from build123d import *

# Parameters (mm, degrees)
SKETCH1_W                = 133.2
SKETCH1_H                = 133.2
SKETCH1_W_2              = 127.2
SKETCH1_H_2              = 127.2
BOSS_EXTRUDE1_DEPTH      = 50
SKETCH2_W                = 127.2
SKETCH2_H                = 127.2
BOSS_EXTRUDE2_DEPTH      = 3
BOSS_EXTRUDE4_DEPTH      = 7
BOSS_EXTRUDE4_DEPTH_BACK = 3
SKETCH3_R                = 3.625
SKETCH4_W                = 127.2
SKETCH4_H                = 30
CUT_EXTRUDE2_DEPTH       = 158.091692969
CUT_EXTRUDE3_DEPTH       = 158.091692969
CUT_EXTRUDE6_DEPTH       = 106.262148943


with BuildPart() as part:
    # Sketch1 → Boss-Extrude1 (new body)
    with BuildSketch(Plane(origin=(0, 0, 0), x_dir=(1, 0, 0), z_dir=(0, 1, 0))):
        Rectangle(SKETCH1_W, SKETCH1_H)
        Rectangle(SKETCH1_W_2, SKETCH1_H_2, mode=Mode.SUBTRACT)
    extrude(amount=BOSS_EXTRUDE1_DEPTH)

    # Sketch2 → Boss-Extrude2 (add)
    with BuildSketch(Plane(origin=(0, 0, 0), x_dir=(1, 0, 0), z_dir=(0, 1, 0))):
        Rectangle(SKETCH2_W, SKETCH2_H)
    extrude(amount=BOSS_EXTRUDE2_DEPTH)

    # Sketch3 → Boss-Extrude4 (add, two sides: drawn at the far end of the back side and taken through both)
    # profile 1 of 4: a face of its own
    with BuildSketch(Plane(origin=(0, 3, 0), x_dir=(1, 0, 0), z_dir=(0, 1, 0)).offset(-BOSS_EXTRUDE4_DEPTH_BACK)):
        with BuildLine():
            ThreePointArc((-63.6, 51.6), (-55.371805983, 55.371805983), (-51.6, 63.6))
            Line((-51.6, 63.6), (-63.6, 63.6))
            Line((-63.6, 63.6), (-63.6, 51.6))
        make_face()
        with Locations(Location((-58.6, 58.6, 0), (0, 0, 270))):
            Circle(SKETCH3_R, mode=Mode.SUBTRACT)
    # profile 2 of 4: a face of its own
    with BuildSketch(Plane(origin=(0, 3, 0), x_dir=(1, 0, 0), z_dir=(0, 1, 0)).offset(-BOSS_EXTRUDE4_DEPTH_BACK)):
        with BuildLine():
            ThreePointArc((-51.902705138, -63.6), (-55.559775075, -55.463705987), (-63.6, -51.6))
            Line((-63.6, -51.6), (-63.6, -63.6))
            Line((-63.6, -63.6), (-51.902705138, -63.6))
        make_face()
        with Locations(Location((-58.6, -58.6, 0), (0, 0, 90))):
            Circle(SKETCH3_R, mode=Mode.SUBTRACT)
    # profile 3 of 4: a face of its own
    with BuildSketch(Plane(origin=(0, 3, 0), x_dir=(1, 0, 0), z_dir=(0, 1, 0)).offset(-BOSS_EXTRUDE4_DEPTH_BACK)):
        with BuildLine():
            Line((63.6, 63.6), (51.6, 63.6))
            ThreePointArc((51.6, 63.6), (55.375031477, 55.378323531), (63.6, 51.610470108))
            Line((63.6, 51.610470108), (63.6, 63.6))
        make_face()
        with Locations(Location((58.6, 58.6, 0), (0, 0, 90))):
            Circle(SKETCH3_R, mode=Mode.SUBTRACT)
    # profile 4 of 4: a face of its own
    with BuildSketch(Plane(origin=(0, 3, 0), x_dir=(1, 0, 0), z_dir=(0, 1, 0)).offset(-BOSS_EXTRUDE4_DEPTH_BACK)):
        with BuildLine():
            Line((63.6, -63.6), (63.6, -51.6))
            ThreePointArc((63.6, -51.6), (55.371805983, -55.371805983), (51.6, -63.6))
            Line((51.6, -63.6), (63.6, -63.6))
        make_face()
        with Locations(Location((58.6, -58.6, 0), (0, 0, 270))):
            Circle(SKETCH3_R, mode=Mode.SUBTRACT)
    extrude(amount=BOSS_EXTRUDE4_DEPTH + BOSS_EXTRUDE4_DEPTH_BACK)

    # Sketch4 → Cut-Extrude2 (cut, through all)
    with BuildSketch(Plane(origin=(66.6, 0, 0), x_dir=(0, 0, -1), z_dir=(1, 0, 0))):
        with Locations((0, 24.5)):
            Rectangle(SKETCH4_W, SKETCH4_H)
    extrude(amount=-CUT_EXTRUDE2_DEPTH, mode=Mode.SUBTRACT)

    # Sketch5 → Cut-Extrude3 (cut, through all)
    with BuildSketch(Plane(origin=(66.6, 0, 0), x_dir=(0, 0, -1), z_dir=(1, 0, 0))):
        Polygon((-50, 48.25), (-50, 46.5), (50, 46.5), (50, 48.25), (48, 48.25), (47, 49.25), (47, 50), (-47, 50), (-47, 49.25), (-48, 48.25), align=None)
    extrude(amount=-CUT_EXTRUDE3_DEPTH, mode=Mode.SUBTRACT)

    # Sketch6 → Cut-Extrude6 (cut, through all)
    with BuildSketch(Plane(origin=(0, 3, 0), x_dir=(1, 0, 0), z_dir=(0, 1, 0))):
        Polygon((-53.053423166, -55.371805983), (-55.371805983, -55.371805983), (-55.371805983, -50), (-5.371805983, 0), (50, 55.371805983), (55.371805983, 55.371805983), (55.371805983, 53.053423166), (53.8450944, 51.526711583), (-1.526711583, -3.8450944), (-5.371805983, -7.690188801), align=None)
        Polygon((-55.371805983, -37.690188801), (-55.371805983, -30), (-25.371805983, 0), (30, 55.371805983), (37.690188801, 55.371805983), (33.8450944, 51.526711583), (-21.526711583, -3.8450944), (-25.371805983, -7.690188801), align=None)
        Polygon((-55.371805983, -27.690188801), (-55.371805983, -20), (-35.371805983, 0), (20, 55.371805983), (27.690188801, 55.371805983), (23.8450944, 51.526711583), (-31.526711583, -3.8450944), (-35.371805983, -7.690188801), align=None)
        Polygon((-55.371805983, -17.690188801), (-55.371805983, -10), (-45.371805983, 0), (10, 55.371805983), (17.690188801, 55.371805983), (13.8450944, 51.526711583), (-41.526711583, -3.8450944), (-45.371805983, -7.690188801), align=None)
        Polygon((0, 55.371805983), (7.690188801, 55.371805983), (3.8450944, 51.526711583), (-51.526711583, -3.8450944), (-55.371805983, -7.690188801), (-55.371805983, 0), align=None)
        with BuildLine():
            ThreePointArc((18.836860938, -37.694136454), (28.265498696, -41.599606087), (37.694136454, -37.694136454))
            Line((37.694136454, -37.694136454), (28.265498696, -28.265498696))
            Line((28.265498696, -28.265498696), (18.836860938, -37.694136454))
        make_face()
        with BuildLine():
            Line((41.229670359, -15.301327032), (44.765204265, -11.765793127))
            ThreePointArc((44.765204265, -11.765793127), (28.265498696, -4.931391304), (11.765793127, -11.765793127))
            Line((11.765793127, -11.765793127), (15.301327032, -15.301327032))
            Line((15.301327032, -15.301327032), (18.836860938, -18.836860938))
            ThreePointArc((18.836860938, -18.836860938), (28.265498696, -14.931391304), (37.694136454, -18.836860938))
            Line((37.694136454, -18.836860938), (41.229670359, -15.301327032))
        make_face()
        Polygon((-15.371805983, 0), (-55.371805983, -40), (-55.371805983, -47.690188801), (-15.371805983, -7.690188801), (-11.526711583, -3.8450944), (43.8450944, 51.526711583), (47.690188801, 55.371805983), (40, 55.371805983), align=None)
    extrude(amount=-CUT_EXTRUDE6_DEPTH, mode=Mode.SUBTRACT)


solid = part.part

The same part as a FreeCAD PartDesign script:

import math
import FreeCAD as App
import Part
import Sketcher

V = App.Vector
Q = App.Units.Quantity


def add_polygon(sketch, points):
    """Adds a closed chain of lines whose ends are joined by coincident constraints."""
    first, n = sketch.GeometryCount, len(points)
    for a, b in zip(points, points[1:] + points[:1]):
        sketch.addGeometry(Part.LineSegment(App.Vector(*a, 0), App.Vector(*b, 0)), False)
    for i in range(n):
        sketch.addConstraint(Sketcher.Constraint("Coincident", first + i, 2, first + (i + 1) % n, 1))

doc = App.newDocument("Part")
body = doc.addObject("PartDesign::Body", "Body")

sketch1 = body.newObject("Sketcher::SketchObject", "Sketch")
sketch1.AttachmentSupport = (doc.getObject("XZ_Plane"), [""])
sketch1.MapMode = "FlatFace"
add_polygon(sketch1, [(-67, -67), (-67, 67), (67, 67), (67, -67)])
add_polygon(sketch1, [(64, 64), (-64, 64), (-64, -64), (64, -64)])
sketch1.addConstraint([
    Sketcher.Constraint("Vertical", 0),
    Sketcher.Constraint("Horizontal", 1),
    Sketcher.Constraint("Vertical", 2),
    Sketcher.Constraint("Horizontal", 3),
    Sketcher.Constraint("Horizontal", 4),
    Sketcher.Constraint("Vertical", 5),
    Sketcher.Constraint("Horizontal", 6),
    Sketcher.Constraint("Vertical", 7),
    Sketcher.Constraint("Symmetric", 0, 2, 2, 2, -1, 1),
    Sketcher.Constraint("Symmetric", 4, 2, 6, 2, -1, 1),
    Sketcher.Constraint("Equal", 3, 0),
    Sketcher.Constraint("Equal", 6, 5),
    Sketcher.Constraint("DistanceX", 1, 1, 1, 2, Q("133.2 mm")),
    Sketcher.Constraint("DistanceX", 4, 2, 4, 1, Q("127.2 mm")),
])
pad1 = body.newObject("PartDesign::Pad", "Pad")
pad1.Profile = sketch1
pad1.Length = 50
pad1.Reversed = True

sketch2 = body.newObject("Sketcher::SketchObject", "Sketch001")
sketch2.AttachmentSupport = (doc.getObject("XZ_Plane"), [""])
sketch2.MapMode = "FlatFace"
add_polygon(sketch2, [(-64, -64), (-64, 64), (64, 64), (64, -64)])
sketch2.addConstraint([
    Sketcher.Constraint("Vertical", 0),
    Sketcher.Constraint("Horizontal", 1),
    Sketcher.Constraint("Vertical", 2),
    Sketcher.Constraint("Horizontal", 3),
    Sketcher.Constraint("Symmetric", 0, 2, 2, 2, -1, 1),
    Sketcher.Constraint("Equal", 3, 0),
    Sketcher.Constraint("DistanceX", 1, 1, 1, 2, Q("127.2 mm")),
])
pad2 = body.newObject("PartDesign::Pad", "Pad001")
pad2.Profile = sketch2
pad2.Length = 3
pad2.Reversed = True

sketch3 = body.newObject("Sketcher::SketchObject", "Sketch002")
sketch3.AttachmentSupport = (doc.getObject("XZ_Plane"), [""])
sketch3.MapMode = "FlatFace"
sketch3.AttachmentOffset = App.Placement(V(0, 0, -3), App.Rotation())
sketch3.addGeometry([
    Part.ArcOfCircle(Part.Circle(V(-64.6, -64.6, 0), V(0, 0, 1), 13), math.radians(4), math.radians(86)),
    Part.LineSegment(V(-51.6, -63.6, 0), V(-63.6, -63.6, 0)),
    Part.LineSegment(V(-63.6, -63.6, 0), V(-63.6, -51.6, 0)),
    Part.Circle(V(-58.6, -58.6, 0), V(0, 0, 1), 3.6),
    Part.ArcOfCircle(Part.Circle(V(-64.9, 64.5, 0), V(0, 0, 1), 13), math.radians(-84), math.radians(-4)),
    Part.LineSegment(V(-63.6, 51.6, 0), V(-63.6, 63.6, 0)),
    Part.LineSegment(V(-63.6, 63.6, 0), V(-51.9, 63.6, 0)),
    Part.Circle(V(-58.6, 58.6, 0), V(0, 0, 1), 3.6),
    Part.LineSegment(V(63.6, -63.6, 0), V(51.6, -63.6, 0)),
    Part.ArcOfCircle(Part.Circle(V(64.6, -64.6, 0), V(0, 0, 1), 13), math.radians(94), math.radians(176)),
    Part.LineSegment(V(63.6, -51.6, 0), V(63.6, -63.6, 0)),
    Part.Circle(V(58.6, -58.6, 0), V(0, 0, 1), 3.6),
    Part.LineSegment(V(63.6, 63.6, 0), V(63.6, 51.6, 0)),
    Part.ArcOfCircle(Part.Circle(V(64.6, 64.6, 0), V(0, 0, 1), 13), math.radians(-176), math.radians(-94)),
    Part.LineSegment(V(51.6, 63.6, 0), V(63.6, 63.6, 0)),
    Part.Circle(V(58.6, 58.6, 0), V(0, 0, 1), 3.6),
], False)
sketch3.addConstraint([
    Sketcher.Constraint("Coincident", 0, 1, 1, 1),
    Sketcher.Constraint("Coincident", 1, 2, 2, 1),
    Sketcher.Constraint("Coincident", 2, 2, 0, 2),
    Sketcher.Constraint("Coincident", 4, 1, 5, 1),
    Sketcher.Constraint("Coincident", 5, 2, 6, 1),
    Sketcher.Constraint("Coincident", 6, 2, 4, 2),
    Sketcher.Constraint("Coincident", 8, 2, 9, 2),
    Sketcher.Constraint("Coincident", 9, 1, 10, 1),
    Sketcher.Constraint("Coincident", 10, 2, 8, 1),
    Sketcher.Constraint("Coincident", 12, 2, 13, 2),
    Sketcher.Constraint("Coincident", 13, 1, 14, 1),
    Sketcher.Constraint("Coincident", 14, 2, 12, 1),
    Sketcher.Constraint("Horizontal", 1),
    Sketcher.Constraint("Vertical", 2),
    Sketcher.Constraint("Vertical", 5),
    Sketcher.Constraint("Horizontal", 6),
    Sketcher.Constraint("Horizontal", 8),
    Sketcher.Constraint("Vertical", 10),
    Sketcher.Constraint("Vertical", 12),
    Sketcher.Constraint("Horizontal", 14),
    Sketcher.Constraint("Equal", 0, 4),
    Sketcher.Constraint("Equal", 3, 7),
    Sketcher.Constraint("Equal", 4, 9),
    Sketcher.Constraint("Equal", 7, 11),
    Sketcher.Constraint("Equal", 9, 13),
    Sketcher.Constraint("Equal", 11, 15),
    Sketcher.Constraint("Symmetric", 7, 3, 11, 3, -1, 1),
    Sketcher.Constraint("Symmetric", 0, 3, 13, 3, -1, 1),
    Sketcher.Constraint("Symmetric", 3, 3, 15, 3, -1, 1),
    Sketcher.Constraint("Symmetric", 5, 2, 10, 2, -1, 1),
    Sketcher.Constraint("Symmetric", 1, 2, 14, 2, -1, 1),
    Sketcher.Constraint("Symmetric", 3, 3, 11, 3, -2),
    Sketcher.Constraint("Symmetric", 0, 1, 8, 2, -2),
    Sketcher.Constraint("Symmetric", 4, 1, 12, 2, -2),
    Sketcher.Constraint("Equal", 14, 2),
    Sketcher.Constraint("Radius", 0, Q("13 mm")),
    Sketcher.Constraint("Diameter", 3, Q("7.25 mm")),
    Sketcher.Constraint("DistanceX", 1, 2, 1, 1, Q("12 mm")),
    Sketcher.Constraint("DistanceX", 3, 3, 0, 1, Q("7 mm")),
    Sketcher.Constraint("DistanceY", 0, 1, 3, 3, Q("5 mm")),
    Sketcher.Constraint("DistanceX", 3, 3, -1, 1, Q("58.6 mm")),
    Sketcher.Constraint("DistanceY", 3, 3, -1, 1, Q("58.6 mm")),
    Sketcher.Constraint("DistanceY", 10, 2, 10, 1, Q("11.98953 mm")),
    Sketcher.Constraint("DistanceX", 6, 1, 6, 2, Q("11.697295 mm")),
])
pad3 = body.newObject("PartDesign::Pad", "Pad002")
pad3.Profile = sketch3
pad3.Type = "TwoLengths"
pad3.Length = 7
pad3.Length2 = 3
pad3.Reversed = True

sketch4 = body.newObject("Sketcher::SketchObject", "Sketch003")
sketch4.AttachmentSupport = (doc.getObject("YZ_Plane"), [""])
sketch4.MapMode = "FlatFace"
sketch4.AttachmentOffset = App.Placement(V(0, 0, 66.6), App.Rotation())
add_polygon(sketch4, [(40, 64), (10, 64), (10, -64), (40, -64)])
sketch4.addConstraint([
    Sketcher.Constraint("Horizontal", 0),
    Sketcher.Constraint("Vertical", 1),
    Sketcher.Constraint("Horizontal", 2),
    Sketcher.Constraint("Vertical", 3),
    Sketcher.Constraint("DistanceX", 0, 2, 0, 1, Q("30 mm")),
    Sketcher.Constraint("DistanceY", 1, 2, 1, 1, Q("127.2 mm")),
    Sketcher.Constraint("DistanceX", -1, 1, 0, 2, Q("9.5 mm")),
    Sketcher.Constraint("DistanceY", -1, 1, 0, 2, Q("63.6 mm")),
])
pocket1 = body.newObject("PartDesign::Pocket", "Pocket")
pocket1.Profile = sketch4
pocket1.Type = "ThroughAll"

sketch5 = body.newObject("Sketcher::SketchObject", "Sketch004")
sketch5.AttachmentSupport = (doc.getObject("YZ_Plane"), [""])
sketch5.MapMode = "FlatFace"
sketch5.AttachmentOffset = App.Placement(V(0, 0, 66.6), App.Rotation())
add_polygon(sketch5, [(48.2, 50), (46.5, 50), (46.5, -50), (48.2, -50), (48.2, -48), (49.2, -47), (50, -47), (50, 47), (49.2, 47), (48.2, 48)])
sketch5.addConstraint([
    Sketcher.Constraint("Horizontal", 0),
    Sketcher.Constraint("Vertical", 1),
    Sketcher.Constraint("Horizontal", 2),
    Sketcher.Constraint("Vertical", 3),
    Sketcher.Constraint("Horizontal", 5),
    Sketcher.Constraint("Vertical", 6),
    Sketcher.Constraint("Horizontal", 7),
    Sketcher.Constraint("Vertical", 9),
    Sketcher.Constraint("Symmetric", 4, 2, 7, 2, -1),
    Sketcher.Constraint("Symmetric", 3, 2, 8, 2, -1),
    Sketcher.Constraint("Perpendicular", 4, 8),
    Sketcher.Constraint("Equal", 3, 9),
    Sketcher.Constraint("DistanceY", 1, 2, 1, 1, Q("100 mm")),
    Sketcher.Constraint("DistanceY", 3, 1, 3, 2, Q("2 mm")),
    Sketcher.Constraint("DistanceY", 6, 1, 6, 2, Q("94 mm")),
    Sketcher.Constraint("DistanceX", -1, 1, 5, 2, Q("50 mm")),
    Sketcher.Constraint("DistanceX", 0, 2, 0, 1, Q("1.75 mm")),
    Sketcher.Constraint("DistanceX", 5, 1, 5, 2, Q("0.75 mm")),
])
pocket2 = body.newObject("PartDesign::Pocket", "Pocket001")
pocket2.Profile = sketch5
pocket2.Type = "ThroughAll"

sketch6 = body.newObject("Sketcher::SketchObject", "Sketch005")
sketch6.AttachmentSupport = (doc.getObject("XZ_Plane"), [""])
sketch6.MapMode = "FlatFace"
sketch6.AttachmentOffset = App.Placement(V(0, 0, -3), App.Rotation())
add_polygon(sketch6, [(-55.4, 55.4), (-53.1, 55.4), (-5.4, 7.7), (-1.5, 3.8), (55.4, -53.1), (55.4, -55.4), (50, -55.4), (-55.4, 50)])
add_polygon(sketch6, [(-55.4, 30), (-55.4, 37.7), (-25.4, 7.7), (-21.5, 3.8), (33.8, -51.5), (37.7, -55.4), (30, -55.4)])
add_polygon(sketch6, [(-55.4, 20), (-55.4, 27.7), (-35.4, 7.7), (-31.5, 3.8), (23.8, -51.5), (27.7, -55.4), (20, -55.4)])
add_polygon(sketch6, [(-55.4, 10), (-55.4, 17.7), (-45.4, 7.7), (-41.5, 3.8), (13.8, -51.5), (17.7, -55.4), (10, -55.4)])
add_polygon(sketch6, [(7.7, -55.4), (0, -55.4), (-55.4, 0), (-55.4, 7.7), (-51.5, 3.8), (3.8, -51.5)])
sketch6.addGeometry(Part.ArcOfCircle(Part.Circle(V(28.3, 28.3, 0), V(0, 0, 1), 13.3), math.radians(45), math.radians(135)), False)
sketch6.addGeometry(Part.LineSegment(V(37.7, 37.7, 0), V(28.3, 28.3, 0)), False)
sketch6.addGeometry(Part.LineSegment(V(28.3, 28.3, 0), V(18.8, 37.7, 0)), False)
sketch6.addGeometry(Part.LineSegment(V(41.2, 15.3, 0), V(44.8, 11.8, 0)), False)
sketch6.addGeometry(Part.ArcOfCircle(Part.Circle(V(28.3, 28.3, 0), V(0, 0, 1), 23.3), math.radians(-135), math.radians(-45)), False)
sketch6.addGeometry(Part.LineSegment(V(11.8, 11.8, 0), V(18.8, 18.8, 0)), False)
sketch6.addGeometry(Part.ArcOfCircle(Part.Circle(V(28.3, 28.3, 0), V(0, 0, 1), 13.3), math.radians(-135), math.radians(-45)), False)
sketch6.addGeometry(Part.LineSegment(V(37.7, 18.8, 0), V(41.2, 15.3, 0)), False)
add_polygon(sketch6, [(-55.4, 40), (-55.4, 47.7), (-15.4, 7.7), (-11.5, 3.8), (43.8, -51.5), (47.7, -55.4), (40, -55.4)])
sketch6.addConstraint([
    Sketcher.Constraint("Coincident", 35, 1, 36, 1),
    Sketcher.Constraint("Coincident", 36, 2, 37, 1),
    Sketcher.Constraint("Coincident", 37, 2, 35, 2),
    Sketcher.Constraint("Coincident", 38, 2, 39, 2),
    Sketcher.Constraint("Coincident", 39, 1, 40, 1),
    Sketcher.Constraint("Coincident", 40, 2, 41, 1),
    Sketcher.Constraint("Coincident", 41, 2, 42, 1),
    Sketcher.Constraint("Coincident", 42, 2, 38, 1),
    Sketcher.Constraint("Horizontal", 0),
    Sketcher.Constraint("Vertical", 4),
    Sketcher.Constraint("Horizontal", 5),
    Sketcher.Constraint("Vertical", 7),
    Sketcher.Constraint("Vertical", 8),
    Sketcher.Constraint("Horizontal", 13),
    Sketcher.Constraint("Vertical", 15),
    Sketcher.Constraint("Horizontal", 20),
    Sketcher.Constraint("Vertical", 22),
    Sketcher.Constraint("Horizontal", 27),
    Sketcher.Constraint("Horizontal", 29),
    Sketcher.Constraint("Vertical", 31),
    Sketcher.Constraint("Vertical", 43),
    Sketcher.Constraint("Horizontal", 48),
    Sketcher.Constraint("Coincident", 39, 3, 35, 3),
    Sketcher.Constraint("Coincident", 41, 3, 35, 3),
    Sketcher.Constraint("Coincident", 36, 2, 35, 3),
    Sketcher.Constraint("Equal", 35, 41),
    Sketcher.Constraint("Symmetric", 4, 2, 7, 2, -1, 1),
    Sketcher.Constraint("PointOnObject", 29, 2, -2),
    Sketcher.Constraint("PointOnObject", 30, 2, -1),
    Sketcher.Constraint("Parallel", 1, 2),
    Sketcher.Constraint("Parallel", 2, 3),
    Sketcher.Constraint("Parallel", 3, 6),
    Sketcher.Constraint("Parallel", 6, 9),
    Sketcher.Constraint("Parallel", 9, 10),
    Sketcher.Constraint("Parallel", 10, 11),
    Sketcher.Constraint("Parallel", 11, 12),
    Sketcher.Constraint("Parallel", 12, 14),
    Sketcher.Constraint("Parallel", 14, 16),
    Sketcher.Constraint("Parallel", 16, 17),
    Sketcher.Constraint("Parallel", 17, 18),
    Sketcher.Constraint("Parallel", 18, 19),
    Sketcher.Constraint("Parallel", 19, 21),
    Sketcher.Constraint("Parallel", 21, 23),
    Sketcher.Constraint("Parallel", 23, 24),
    Sketcher.Constraint("Parallel", 24, 25),
    Sketcher.Constraint("Parallel", 25, 26),
    Sketcher.Constraint("Parallel", 26, 28),
    Sketcher.Constraint("Parallel", 28, 30),
    Sketcher.Constraint("Parallel", 30, 32),
    Sketcher.Constraint("Parallel", 32, 33),
    Sketcher.Constraint("Parallel", 33, 34),
    Sketcher.Constraint("Perpendicular", 34, 36),
    Sketcher.Constraint("Perpendicular", 36, 37),
    Sketcher.Constraint("Parallel", 37, 38),
    Sketcher.Constraint("Perpendicular", 38, 40),
    Sketcher.Constraint("Perpendicular", 40, 42),
    Sketcher.Constraint("Parallel", 42, 44),
    Sketcher.Constraint("Parallel", 44, 45),
    Sketcher.Constraint("Parallel", 45, 46),
    Sketcher.Constraint("Parallel", 46, 47),
    Sketcher.Constraint("Parallel", 47, 49),
    Sketcher.Constraint("Horizontal", 1, 2, 9, 2),
    Sketcher.Constraint("Horizontal", 2, 2, 10, 2),
    Sketcher.Constraint("Horizontal", 5, 2, 12, 2),
    Sketcher.Constraint("Horizontal", 9, 2, 16, 2),
    Sketcher.Constraint("Horizontal", 10, 2, 17, 2),
    Sketcher.Constraint("Horizontal", 11, 2, 18, 2),
    Sketcher.Constraint("Horizontal", 13, 2, 19, 2),
    Sketcher.Constraint("Horizontal", 16, 2, 23, 2),
    Sketcher.Constraint("Horizontal", 17, 2, 24, 2),
    Sketcher.Constraint("Horizontal", 18, 2, 25, 2),
    Sketcher.Constraint("Horizontal", 20, 2, 26, 2),
    Sketcher.Constraint("Horizontal", 27, 2, 29, 2),
    Sketcher.Constraint("Horizontal", 23, 2, 31, 2),
    Sketcher.Constraint("Horizontal", 24, 2, 32, 2),
    Sketcher.Constraint("Horizontal", 25, 2, 33, 2),
    Sketcher.Constraint("Horizontal", 35, 1, 37, 2),
    Sketcher.Constraint("Horizontal", 38, 2, 39, 1),
    Sketcher.Constraint("Horizontal", 31, 2, 44, 2),
    Sketcher.Constraint("Horizontal", 32, 2, 45, 2),
    Sketcher.Constraint("Horizontal", 33, 2, 46, 2),
    Sketcher.Constraint("Horizontal", 34, 2, 47, 2),
    Sketcher.Constraint("Vertical", 7, 2, 8, 2),
    Sketcher.Constraint("Vertical", 14, 2, 15, 2),
    Sketcher.Constraint("Vertical", 21, 2, 22, 2),
    Sketcher.Constraint("Vertical", 28, 2, 30, 2),
    Sketcher.Constraint("Vertical", 37, 2, 40, 2),
    Sketcher.Constraint("Vertical", 31, 2, 43, 2),
    Sketcher.Constraint("Equal", 13, 20),
    Sketcher.Constraint("Equal", 20, 27),
    Sketcher.Constraint("Equal", 27, 29),
    Sketcher.Constraint("Equal", 29, 48),
    Sketcher.Constraint("Equal", 10, 12),
    Sketcher.Constraint("Equal", 25, 30),
    Sketcher.Constraint("Equal", 38, 42),
    Sketcher.Constraint("Distance", 38, Q("5 mm")),
    Sketcher.Constraint("DistanceX", -1, 1, 5, 2, Q("50 mm")),
    Sketcher.Constraint("DistanceX", -1, 1, 13, 2, Q("30 mm")),
    Sketcher.Constraint("DistanceX", -1, 1, 20, 2, Q("20 mm")),
    Sketcher.Constraint("DistanceX", -1, 1, 27, 2, Q("10 mm")),
    Sketcher.Constraint("DistanceX", -1, 1, 48, 2, Q("40 mm")),
    Sketcher.Constraint("DistanceX", 6, 2, 1, 2, Q("50 mm")),
    Sketcher.Constraint("Radius", 35, Q("13.334107 mm")),
    Sketcher.Constraint("Distance", 49, Q("134.876101 mm")),
    Sketcher.Constraint("DistanceX", 13, 2, 13, 1, Q("7.690189 mm")),
    Sketcher.Constraint("DistanceX", -1, 1, 35, 3, Q("28.265499 mm")),
    Sketcher.Constraint("DistanceY", -1, 1, 35, 3, Q("28.265499 mm")),
])
pocket3 = body.newObject("PartDesign::Pocket", "Pocket002")
pocket3.Profile = sketch6
pocket3.Type = "ThroughAll"
pocket3.Reversed = True

doc.recompute()
